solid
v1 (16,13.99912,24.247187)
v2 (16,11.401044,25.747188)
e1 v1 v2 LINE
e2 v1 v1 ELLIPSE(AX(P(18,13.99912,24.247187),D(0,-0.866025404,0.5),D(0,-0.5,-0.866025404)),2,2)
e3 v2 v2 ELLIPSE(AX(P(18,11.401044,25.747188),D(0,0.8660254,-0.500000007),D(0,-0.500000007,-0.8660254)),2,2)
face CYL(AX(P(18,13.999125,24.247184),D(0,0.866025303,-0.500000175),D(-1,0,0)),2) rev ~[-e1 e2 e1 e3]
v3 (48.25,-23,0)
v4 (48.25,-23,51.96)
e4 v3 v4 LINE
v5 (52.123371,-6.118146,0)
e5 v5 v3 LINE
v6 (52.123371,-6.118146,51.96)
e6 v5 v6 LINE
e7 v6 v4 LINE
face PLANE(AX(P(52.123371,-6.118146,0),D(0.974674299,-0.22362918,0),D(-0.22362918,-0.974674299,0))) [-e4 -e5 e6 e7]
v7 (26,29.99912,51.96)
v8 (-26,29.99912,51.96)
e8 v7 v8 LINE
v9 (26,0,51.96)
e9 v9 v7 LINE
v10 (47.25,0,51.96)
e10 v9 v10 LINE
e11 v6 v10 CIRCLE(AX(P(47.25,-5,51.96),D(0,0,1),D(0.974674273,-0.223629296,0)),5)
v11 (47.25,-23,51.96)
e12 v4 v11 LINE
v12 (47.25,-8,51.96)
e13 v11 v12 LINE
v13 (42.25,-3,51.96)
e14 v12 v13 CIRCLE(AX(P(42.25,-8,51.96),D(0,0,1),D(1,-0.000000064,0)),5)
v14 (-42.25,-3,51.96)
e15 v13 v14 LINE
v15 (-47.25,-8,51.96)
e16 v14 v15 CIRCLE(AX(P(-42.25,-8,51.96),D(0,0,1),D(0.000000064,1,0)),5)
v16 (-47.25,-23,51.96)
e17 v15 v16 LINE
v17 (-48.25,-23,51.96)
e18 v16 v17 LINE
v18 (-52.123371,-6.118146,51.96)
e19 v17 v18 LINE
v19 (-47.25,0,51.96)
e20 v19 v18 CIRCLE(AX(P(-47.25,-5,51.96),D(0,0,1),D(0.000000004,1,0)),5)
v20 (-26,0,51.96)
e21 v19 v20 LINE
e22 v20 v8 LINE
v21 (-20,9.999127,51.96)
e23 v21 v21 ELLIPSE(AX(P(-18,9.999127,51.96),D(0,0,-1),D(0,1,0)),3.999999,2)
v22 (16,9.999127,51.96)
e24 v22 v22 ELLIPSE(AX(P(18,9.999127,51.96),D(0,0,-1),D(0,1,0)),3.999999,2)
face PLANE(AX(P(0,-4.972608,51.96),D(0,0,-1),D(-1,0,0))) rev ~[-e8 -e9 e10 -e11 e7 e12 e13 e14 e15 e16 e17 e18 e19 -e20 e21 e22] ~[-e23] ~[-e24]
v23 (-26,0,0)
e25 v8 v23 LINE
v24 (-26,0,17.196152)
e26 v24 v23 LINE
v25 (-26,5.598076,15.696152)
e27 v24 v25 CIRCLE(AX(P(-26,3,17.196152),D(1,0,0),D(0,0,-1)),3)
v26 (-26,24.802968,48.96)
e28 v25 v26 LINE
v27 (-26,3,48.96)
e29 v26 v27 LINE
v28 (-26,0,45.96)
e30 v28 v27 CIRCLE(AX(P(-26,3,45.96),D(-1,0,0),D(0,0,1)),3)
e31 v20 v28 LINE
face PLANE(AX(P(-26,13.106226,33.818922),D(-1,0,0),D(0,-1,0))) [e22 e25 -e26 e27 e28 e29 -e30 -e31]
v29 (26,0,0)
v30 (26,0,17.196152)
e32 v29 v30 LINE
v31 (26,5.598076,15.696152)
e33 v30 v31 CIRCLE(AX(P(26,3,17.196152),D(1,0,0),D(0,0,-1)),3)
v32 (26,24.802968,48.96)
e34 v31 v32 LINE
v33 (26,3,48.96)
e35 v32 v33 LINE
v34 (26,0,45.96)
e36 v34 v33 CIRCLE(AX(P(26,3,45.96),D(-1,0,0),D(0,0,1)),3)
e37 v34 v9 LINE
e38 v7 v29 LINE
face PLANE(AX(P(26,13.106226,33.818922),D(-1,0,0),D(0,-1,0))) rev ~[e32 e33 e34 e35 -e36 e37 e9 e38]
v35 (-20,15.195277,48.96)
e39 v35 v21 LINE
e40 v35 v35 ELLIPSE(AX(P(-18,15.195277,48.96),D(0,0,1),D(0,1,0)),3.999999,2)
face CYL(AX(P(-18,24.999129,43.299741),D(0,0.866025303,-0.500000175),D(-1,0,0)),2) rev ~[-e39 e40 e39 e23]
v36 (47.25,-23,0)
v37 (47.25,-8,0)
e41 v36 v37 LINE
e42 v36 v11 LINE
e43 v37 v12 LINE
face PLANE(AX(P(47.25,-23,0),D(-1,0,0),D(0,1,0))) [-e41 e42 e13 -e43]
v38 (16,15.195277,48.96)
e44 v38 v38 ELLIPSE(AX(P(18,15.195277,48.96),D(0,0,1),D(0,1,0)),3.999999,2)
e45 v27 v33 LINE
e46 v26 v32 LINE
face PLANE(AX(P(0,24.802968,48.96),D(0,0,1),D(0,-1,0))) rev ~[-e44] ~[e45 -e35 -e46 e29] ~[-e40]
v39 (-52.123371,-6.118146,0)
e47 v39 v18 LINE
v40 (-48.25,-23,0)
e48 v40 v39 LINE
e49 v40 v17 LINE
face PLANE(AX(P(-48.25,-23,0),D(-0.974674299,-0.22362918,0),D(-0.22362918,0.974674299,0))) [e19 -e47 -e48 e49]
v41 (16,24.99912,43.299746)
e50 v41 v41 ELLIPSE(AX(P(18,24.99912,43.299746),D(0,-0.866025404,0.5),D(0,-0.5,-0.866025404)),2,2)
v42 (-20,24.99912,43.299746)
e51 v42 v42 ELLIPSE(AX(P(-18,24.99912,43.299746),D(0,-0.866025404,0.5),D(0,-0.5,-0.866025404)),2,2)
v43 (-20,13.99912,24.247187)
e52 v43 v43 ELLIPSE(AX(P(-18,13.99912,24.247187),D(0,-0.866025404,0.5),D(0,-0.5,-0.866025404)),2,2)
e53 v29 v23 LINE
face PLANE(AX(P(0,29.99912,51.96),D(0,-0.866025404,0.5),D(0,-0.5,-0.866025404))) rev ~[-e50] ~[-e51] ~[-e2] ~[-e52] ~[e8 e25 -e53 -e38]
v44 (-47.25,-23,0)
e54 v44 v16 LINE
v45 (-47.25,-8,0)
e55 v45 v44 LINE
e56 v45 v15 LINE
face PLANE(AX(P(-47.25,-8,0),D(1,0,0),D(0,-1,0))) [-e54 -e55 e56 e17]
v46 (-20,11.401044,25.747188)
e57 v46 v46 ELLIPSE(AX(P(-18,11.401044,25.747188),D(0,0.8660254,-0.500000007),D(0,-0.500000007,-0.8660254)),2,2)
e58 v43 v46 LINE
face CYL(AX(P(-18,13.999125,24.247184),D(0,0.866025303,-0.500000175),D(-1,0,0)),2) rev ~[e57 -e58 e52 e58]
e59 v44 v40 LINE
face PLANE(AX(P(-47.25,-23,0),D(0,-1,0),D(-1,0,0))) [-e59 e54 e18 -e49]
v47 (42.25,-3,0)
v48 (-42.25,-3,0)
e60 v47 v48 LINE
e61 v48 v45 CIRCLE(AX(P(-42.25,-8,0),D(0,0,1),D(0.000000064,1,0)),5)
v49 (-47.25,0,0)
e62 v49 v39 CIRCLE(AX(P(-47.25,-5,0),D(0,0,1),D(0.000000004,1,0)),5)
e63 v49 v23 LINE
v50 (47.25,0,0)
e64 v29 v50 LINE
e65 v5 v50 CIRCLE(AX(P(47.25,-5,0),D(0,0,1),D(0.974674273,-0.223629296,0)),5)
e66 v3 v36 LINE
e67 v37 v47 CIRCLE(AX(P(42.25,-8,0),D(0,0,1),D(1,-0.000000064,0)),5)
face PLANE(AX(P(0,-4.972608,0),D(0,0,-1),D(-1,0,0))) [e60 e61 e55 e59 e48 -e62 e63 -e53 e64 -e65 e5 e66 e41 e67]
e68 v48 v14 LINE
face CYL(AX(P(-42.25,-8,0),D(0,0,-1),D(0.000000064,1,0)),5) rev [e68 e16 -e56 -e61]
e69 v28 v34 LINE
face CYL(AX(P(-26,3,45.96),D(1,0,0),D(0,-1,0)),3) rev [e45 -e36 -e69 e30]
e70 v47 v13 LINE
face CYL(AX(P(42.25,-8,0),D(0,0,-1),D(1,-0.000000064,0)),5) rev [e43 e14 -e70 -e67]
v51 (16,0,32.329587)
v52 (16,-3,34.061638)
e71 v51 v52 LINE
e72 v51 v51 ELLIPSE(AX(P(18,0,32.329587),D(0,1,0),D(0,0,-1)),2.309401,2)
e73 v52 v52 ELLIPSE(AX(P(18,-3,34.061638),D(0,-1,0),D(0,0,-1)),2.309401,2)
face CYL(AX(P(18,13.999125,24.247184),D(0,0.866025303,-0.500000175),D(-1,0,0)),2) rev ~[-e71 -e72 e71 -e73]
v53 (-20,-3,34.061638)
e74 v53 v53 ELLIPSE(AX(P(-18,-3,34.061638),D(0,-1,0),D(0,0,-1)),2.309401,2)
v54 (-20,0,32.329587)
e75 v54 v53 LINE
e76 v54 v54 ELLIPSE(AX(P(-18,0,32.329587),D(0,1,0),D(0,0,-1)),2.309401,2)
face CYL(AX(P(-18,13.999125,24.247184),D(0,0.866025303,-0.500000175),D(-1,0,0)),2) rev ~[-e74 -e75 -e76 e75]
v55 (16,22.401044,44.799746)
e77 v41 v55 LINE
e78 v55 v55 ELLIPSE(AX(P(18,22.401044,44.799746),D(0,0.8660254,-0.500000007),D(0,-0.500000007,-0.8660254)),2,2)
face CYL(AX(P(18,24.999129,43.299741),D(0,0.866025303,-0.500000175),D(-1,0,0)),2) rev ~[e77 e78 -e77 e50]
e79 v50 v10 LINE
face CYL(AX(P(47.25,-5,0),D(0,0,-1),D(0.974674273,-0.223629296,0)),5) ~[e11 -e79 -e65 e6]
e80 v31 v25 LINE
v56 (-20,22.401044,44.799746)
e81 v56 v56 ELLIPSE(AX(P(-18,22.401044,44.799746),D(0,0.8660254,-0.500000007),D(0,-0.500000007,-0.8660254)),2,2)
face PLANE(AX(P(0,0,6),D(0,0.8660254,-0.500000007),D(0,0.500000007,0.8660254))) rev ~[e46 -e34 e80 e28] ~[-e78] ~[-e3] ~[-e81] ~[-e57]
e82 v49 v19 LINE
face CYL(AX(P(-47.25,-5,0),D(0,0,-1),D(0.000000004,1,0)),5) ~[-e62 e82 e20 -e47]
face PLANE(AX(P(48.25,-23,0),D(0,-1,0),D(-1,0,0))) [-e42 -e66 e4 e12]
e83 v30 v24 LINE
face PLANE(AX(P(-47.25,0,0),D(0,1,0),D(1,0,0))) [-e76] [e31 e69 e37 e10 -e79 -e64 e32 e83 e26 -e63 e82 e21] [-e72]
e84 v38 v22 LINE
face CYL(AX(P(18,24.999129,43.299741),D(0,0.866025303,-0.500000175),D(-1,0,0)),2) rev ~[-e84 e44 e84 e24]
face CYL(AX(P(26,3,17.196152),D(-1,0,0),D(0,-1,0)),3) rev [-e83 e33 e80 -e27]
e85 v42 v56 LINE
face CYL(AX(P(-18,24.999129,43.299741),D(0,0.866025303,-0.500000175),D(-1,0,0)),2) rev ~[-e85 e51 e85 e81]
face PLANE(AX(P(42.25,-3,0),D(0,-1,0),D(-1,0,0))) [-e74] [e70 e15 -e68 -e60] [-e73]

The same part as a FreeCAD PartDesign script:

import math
import FreeCAD as App
import Part
import Sketcher

V = App.Vector
Q = App.Units.Quantity


def edges_at(feature, points):
    """Names of the edges that pass closest to the given points."""
    edges = feature.Shape.Edges
    near = lambda p: min(range(len(edges)), key=lambda i: edges[i].distToShape(Part.Vertex(*p))[0])
    return sorted({f"Edge{near(p) + 1}" for p in points})

doc = App.newDocument("Part")
body = doc.addObject("PartDesign::Body", "Body")

sketch1 = body.newObject("Sketcher::SketchObject", "Sketch")
sketch1.AttachmentSupport = (doc.getObject("XY_Plane"), [""])
sketch1.MapMode = "FlatFace"
sketch1.addGeometry(Part.LineSegment(V(-52.1, -6.1, 0), V(-48.2, -23, 0)), False)
sketch1.addGeometry(Part.LineSegment(V(-48.2, -23, 0), V(-47.2, -23, 0)), False)
sketch1.addGeometry(Part.LineSegment(V(-47.2, -23, 0), V(-47.2, -8, 0)), False)
sketch1.addGeometry(Part.ArcOfCircle(Part.Circle(V(-42.3, -8, 0), V(0, 0, 1), 5), math.radians(90), math.radians(180)), False)
sketch1.addGeometry(Part.LineSegment(V(-42.2, -3, 0), V(42.2, -3, 0)), False)
sketch1.addGeometry(Part.ArcOfCircle(Part.Circle(V(42.3, -8, 0), V(0, 0, 1), 5), math.radians(0), math.radians(90)), False)
sketch1.addGeometry(Part.LineSegment(V(47.2, -8, 0), V(47.2, -23, 0)), False)
sketch1.addGeometry(Part.LineSegment(V(47.2, -23, 0), V(48.2, -23, 0)), False)
sketch1.addGeometry(Part.LineSegment(V(48.2, -23, 0), V(52.1, -6.1, 0)), False)
sketch1.addGeometry(Part.ArcOfCircle(Part.Circle(V(47.3, -5, 0), V(0, 0, 1), 5), math.radians(-13), math.radians(90)), False)
sketch1.addGeometry(Part.LineSegment(V(47.2, 0, 0), V(-47.2, 0, 0)), False)
sketch1.addGeometry(Part.ArcOfCircle(Part.Circle(V(-47.3, -5, 0), V(0, 0, 1), 5), math.radians(90), math.radians(193)), False)
sketch1.addConstraint(Sketcher.Constraint("Coincident", 0, 2, 1, 1))
sketch1.addConstraint(Sketcher.Constraint("Coincident", 1, 2, 2, 1))
sketch1.addConstraint(Sketcher.Constraint("Tangent", 2, 2, 3, 2))
sketch1.addConstraint(Sketcher.Constraint("Tangent", 3, 1, 4, 1))
sketch1.addConstraint(Sketcher.Constraint("Tangent", 4, 2, 5, 2))
sketch1.addConstraint(Sketcher.Constraint("Tangent", 5, 1, 6, 1))
sketch1.addConstraint(Sketcher.Constraint("Coincident", 6, 2, 7, 1))
sketch1.addConstraint(Sketcher.Constraint("Coincident", 7, 2, 8, 1))
sketch1.addConstraint(Sketcher.Constraint("Tangent", 8, 2, 9, 1))
sketch1.addConstraint(Sketcher.Constraint("Tangent", 9, 2, 10, 1))
sketch1.addConstraint(Sketcher.Constraint("Tangent", 10, 2, 11, 1))
sketch1.addConstraint(Sketcher.Constraint("Tangent", 11, 2, 0, 1))
sketch1.addConstraint(Sketcher.Constraint("Horizontal", 1))
sketch1.addConstraint(Sketcher.Constraint("Vertical", 2))
sketch1.addConstraint(Sketcher.Constraint("Horizontal", 4))
sketch1.addConstraint(Sketcher.Constraint("Vertical", 6))
sketch1.addConstraint(Sketcher.Constraint("Horizontal", 7))
sketch1.addConstraint(Sketcher.Constraint("Horizontal", 10))
sketch1.addConstraint(Sketcher.Constraint("Equal", 3, 5))
sketch1.addConstraint(Sketcher.Constraint("Equal", 5, 9))
sketch1.addConstraint(Sketcher.Constraint("Equal", 9, 11))
sketch1.addConstraint(Sketcher.Constraint("Symmetric", 9, 2, 10, 2, -1, 1))
sketch1.addConstraint(Sketcher.Constraint("Symmetric", 1, 2, 6, 2, -2))
sketch1.addConstraint(Sketcher.Constraint("Horizontal", 8, 2, 11, 2))
sketch1.addConstraint(Sketcher.Constraint("Vertical", 11, 3, 1, 2))
sketch1.addConstraint(Sketcher.Constraint("Radius", 3, 5.0))
sketch1.addConstraint(Sketcher.Constraint("DistanceX", 1, 1, 1, 2, 1.0))
sketch1.addConstraint(Sketcher.Constraint("DistanceY", 2, 1, 2, 2, 15.0))
sketch1.addConstraint(Sketcher.Constraint("DistanceX", 4, 1, 4, 2, 84.5))
sketch1.addConstraint(Sketcher.Constraint("DistanceY", 3, 3, -1, 1, 8.0))
pad1 = body.newObject("PartDesign::Pad", "Pad")
pad1.Profile = sketch1
pad1.Length = 51.96

sketch2 = body.newObject("Sketcher::SketchObject", "Sketch001")
sketch2.AttachmentSupport = (doc.getObject("YZ_Plane"), [""])
sketch2.MapMode = "FlatFace"
sketch2.addGeometry(Part.LineSegment(V(30, 52, 0), V(0, 52, 0)), False)
sketch2.addGeometry(Part.LineSegment(V(0, 52, 0), V(0, 49, 0)), False)
sketch2.addGeometry(Part.LineSegment(V(0, 49, 0), V(24.8, 49, 0)), False)
sketch2.addGeometry(Part.LineSegment(V(24.8, 49, 0), V(0, 6, 0)), False)
sketch2.addGeometry(Part.LineSegment(V(0, 6, 0), V(0, 0, 0)), False)
sketch2.addGeometry(Part.LineSegment(V(0, 0, 0), V(30, 52, 0)), False)
sketch2.addConstraint(Sketcher.Constraint("Coincident", 0, 2, 1, 1))
sketch2.addConstraint(Sketcher.Constraint("Coincident", 1, 2, 2, 1))
sketch2.addConstraint(Sketcher.Constraint("Coincident", 2, 2, 3, 1))
sketch2.addConstraint(Sketcher.Constraint("Coincident", 3, 2, 4, 1))
sketch2.addConstraint(Sketcher.Constraint("Coincident", 4, 2, 5, 1))
sketch2.addConstraint(Sketcher.Constraint("Coincident", 5, 2, 0, 1))
sketch2.addConstraint(Sketcher.Constraint("Horizontal", 0))
sketch2.addConstraint(Sketcher.Constraint("Vertical", 1))
sketch2.addConstraint(Sketcher.Constraint("Horizontal", 2))
sketch2.addConstraint(Sketcher.Constraint("Vertical", 4))
sketch2.addConstraint(Sketcher.Constraint("Coincident", 4, 2, -1, 1))
sketch2.addConstraint(Sketcher.Constraint("PointOnObject", 0, 2, -2))
sketch2.addConstraint(Sketcher.Constraint("Parallel", 3, 5))
sketch2.addConstraint(Sketcher.Constraint("DistanceY", 1, 2, 1, 1, 3.0))
sketch2.addConstraint(Sketcher.Constraint("DistanceY", 4, 2, 4, 1, 6.0))
sketch2.addConstraint(Sketcher.Constraint("Angle", 3, Q("-120 deg")))
sketch2.addConstraint(Sketcher.Constraint("DistanceY", -1, 1, 0, 2, 51.96))
pad2 = body.newObject("PartDesign::Pad", "Pad001")
pad2.Profile = sketch2
pad2.Length = 52
pad2.Midplane = True

sketch3 = body.newObject("Sketcher::SketchObject", "Sketch002")
sketch3.Placement = App.Placement(V(0, 0, 0), App.Rotation(V(-1, 0, 0), V(0, 0.500000175, 0.866025303), V(0, 0.866025303, -0.500000175), "ZXY"))
sketch3.addGeometry(Part.Circle(V(-18, 50, 0), V(0, 0, 1), 2), False)
sketch3.addGeometry(Part.Circle(V(18, 50, 0), V(0, 0, 1), 2), False)
sketch3.addGeometry(Part.Circle(V(-18, 28, 0), V(0, 0, 1), 2), False)
sketch3.addGeometry(Part.Circle(V(18, 28, 0), V(0, 0, 1), 2), False)
sketch3.addConstraint(Sketcher.Constraint("Equal", 0, 1))
sketch3.addConstraint(Sketcher.Constraint("Equal", 1, 2))
sketch3.addConstraint(Sketcher.Constraint("Equal", 2, 3))
sketch3.addConstraint(Sketcher.Constraint("Symmetric", 0, 3, 1, 3, -2))
sketch3.addConstraint(Sketcher.Constraint("Symmetric", 2, 3, 3, 3, -2))
sketch3.addConstraint(Sketcher.Constraint("Vertical", 0, 3, 2, 3))
sketch3.addConstraint(Sketcher.Constraint("Diameter", 0, 4.0))
sketch3.addConstraint(Sketcher.Constraint("DistanceX", 0, 3, -1, 1, 18.0))
sketch3.addConstraint(Sketcher.Constraint("DistanceY", 2, 3, 0, 3, 22.0))
sketch3.addConstraint(Sketcher.Constraint("DistanceY", -1, 1, 0, 3, 49.99824))
pocket1 = body.newObject("PartDesign::Pocket", "Pocket")
pocket1.Profile = sketch3
pocket1.Type = "ThroughAll"
doc.recompute()

fillet = body.newObject("PartDesign::Fillet", "Fillet")
fillet.Base = (pocket1, edges_at(pocket1, [(0, 0, 48.96), (0, 0, 6)]))
fillet.Radius = 3

doc.recompute()
